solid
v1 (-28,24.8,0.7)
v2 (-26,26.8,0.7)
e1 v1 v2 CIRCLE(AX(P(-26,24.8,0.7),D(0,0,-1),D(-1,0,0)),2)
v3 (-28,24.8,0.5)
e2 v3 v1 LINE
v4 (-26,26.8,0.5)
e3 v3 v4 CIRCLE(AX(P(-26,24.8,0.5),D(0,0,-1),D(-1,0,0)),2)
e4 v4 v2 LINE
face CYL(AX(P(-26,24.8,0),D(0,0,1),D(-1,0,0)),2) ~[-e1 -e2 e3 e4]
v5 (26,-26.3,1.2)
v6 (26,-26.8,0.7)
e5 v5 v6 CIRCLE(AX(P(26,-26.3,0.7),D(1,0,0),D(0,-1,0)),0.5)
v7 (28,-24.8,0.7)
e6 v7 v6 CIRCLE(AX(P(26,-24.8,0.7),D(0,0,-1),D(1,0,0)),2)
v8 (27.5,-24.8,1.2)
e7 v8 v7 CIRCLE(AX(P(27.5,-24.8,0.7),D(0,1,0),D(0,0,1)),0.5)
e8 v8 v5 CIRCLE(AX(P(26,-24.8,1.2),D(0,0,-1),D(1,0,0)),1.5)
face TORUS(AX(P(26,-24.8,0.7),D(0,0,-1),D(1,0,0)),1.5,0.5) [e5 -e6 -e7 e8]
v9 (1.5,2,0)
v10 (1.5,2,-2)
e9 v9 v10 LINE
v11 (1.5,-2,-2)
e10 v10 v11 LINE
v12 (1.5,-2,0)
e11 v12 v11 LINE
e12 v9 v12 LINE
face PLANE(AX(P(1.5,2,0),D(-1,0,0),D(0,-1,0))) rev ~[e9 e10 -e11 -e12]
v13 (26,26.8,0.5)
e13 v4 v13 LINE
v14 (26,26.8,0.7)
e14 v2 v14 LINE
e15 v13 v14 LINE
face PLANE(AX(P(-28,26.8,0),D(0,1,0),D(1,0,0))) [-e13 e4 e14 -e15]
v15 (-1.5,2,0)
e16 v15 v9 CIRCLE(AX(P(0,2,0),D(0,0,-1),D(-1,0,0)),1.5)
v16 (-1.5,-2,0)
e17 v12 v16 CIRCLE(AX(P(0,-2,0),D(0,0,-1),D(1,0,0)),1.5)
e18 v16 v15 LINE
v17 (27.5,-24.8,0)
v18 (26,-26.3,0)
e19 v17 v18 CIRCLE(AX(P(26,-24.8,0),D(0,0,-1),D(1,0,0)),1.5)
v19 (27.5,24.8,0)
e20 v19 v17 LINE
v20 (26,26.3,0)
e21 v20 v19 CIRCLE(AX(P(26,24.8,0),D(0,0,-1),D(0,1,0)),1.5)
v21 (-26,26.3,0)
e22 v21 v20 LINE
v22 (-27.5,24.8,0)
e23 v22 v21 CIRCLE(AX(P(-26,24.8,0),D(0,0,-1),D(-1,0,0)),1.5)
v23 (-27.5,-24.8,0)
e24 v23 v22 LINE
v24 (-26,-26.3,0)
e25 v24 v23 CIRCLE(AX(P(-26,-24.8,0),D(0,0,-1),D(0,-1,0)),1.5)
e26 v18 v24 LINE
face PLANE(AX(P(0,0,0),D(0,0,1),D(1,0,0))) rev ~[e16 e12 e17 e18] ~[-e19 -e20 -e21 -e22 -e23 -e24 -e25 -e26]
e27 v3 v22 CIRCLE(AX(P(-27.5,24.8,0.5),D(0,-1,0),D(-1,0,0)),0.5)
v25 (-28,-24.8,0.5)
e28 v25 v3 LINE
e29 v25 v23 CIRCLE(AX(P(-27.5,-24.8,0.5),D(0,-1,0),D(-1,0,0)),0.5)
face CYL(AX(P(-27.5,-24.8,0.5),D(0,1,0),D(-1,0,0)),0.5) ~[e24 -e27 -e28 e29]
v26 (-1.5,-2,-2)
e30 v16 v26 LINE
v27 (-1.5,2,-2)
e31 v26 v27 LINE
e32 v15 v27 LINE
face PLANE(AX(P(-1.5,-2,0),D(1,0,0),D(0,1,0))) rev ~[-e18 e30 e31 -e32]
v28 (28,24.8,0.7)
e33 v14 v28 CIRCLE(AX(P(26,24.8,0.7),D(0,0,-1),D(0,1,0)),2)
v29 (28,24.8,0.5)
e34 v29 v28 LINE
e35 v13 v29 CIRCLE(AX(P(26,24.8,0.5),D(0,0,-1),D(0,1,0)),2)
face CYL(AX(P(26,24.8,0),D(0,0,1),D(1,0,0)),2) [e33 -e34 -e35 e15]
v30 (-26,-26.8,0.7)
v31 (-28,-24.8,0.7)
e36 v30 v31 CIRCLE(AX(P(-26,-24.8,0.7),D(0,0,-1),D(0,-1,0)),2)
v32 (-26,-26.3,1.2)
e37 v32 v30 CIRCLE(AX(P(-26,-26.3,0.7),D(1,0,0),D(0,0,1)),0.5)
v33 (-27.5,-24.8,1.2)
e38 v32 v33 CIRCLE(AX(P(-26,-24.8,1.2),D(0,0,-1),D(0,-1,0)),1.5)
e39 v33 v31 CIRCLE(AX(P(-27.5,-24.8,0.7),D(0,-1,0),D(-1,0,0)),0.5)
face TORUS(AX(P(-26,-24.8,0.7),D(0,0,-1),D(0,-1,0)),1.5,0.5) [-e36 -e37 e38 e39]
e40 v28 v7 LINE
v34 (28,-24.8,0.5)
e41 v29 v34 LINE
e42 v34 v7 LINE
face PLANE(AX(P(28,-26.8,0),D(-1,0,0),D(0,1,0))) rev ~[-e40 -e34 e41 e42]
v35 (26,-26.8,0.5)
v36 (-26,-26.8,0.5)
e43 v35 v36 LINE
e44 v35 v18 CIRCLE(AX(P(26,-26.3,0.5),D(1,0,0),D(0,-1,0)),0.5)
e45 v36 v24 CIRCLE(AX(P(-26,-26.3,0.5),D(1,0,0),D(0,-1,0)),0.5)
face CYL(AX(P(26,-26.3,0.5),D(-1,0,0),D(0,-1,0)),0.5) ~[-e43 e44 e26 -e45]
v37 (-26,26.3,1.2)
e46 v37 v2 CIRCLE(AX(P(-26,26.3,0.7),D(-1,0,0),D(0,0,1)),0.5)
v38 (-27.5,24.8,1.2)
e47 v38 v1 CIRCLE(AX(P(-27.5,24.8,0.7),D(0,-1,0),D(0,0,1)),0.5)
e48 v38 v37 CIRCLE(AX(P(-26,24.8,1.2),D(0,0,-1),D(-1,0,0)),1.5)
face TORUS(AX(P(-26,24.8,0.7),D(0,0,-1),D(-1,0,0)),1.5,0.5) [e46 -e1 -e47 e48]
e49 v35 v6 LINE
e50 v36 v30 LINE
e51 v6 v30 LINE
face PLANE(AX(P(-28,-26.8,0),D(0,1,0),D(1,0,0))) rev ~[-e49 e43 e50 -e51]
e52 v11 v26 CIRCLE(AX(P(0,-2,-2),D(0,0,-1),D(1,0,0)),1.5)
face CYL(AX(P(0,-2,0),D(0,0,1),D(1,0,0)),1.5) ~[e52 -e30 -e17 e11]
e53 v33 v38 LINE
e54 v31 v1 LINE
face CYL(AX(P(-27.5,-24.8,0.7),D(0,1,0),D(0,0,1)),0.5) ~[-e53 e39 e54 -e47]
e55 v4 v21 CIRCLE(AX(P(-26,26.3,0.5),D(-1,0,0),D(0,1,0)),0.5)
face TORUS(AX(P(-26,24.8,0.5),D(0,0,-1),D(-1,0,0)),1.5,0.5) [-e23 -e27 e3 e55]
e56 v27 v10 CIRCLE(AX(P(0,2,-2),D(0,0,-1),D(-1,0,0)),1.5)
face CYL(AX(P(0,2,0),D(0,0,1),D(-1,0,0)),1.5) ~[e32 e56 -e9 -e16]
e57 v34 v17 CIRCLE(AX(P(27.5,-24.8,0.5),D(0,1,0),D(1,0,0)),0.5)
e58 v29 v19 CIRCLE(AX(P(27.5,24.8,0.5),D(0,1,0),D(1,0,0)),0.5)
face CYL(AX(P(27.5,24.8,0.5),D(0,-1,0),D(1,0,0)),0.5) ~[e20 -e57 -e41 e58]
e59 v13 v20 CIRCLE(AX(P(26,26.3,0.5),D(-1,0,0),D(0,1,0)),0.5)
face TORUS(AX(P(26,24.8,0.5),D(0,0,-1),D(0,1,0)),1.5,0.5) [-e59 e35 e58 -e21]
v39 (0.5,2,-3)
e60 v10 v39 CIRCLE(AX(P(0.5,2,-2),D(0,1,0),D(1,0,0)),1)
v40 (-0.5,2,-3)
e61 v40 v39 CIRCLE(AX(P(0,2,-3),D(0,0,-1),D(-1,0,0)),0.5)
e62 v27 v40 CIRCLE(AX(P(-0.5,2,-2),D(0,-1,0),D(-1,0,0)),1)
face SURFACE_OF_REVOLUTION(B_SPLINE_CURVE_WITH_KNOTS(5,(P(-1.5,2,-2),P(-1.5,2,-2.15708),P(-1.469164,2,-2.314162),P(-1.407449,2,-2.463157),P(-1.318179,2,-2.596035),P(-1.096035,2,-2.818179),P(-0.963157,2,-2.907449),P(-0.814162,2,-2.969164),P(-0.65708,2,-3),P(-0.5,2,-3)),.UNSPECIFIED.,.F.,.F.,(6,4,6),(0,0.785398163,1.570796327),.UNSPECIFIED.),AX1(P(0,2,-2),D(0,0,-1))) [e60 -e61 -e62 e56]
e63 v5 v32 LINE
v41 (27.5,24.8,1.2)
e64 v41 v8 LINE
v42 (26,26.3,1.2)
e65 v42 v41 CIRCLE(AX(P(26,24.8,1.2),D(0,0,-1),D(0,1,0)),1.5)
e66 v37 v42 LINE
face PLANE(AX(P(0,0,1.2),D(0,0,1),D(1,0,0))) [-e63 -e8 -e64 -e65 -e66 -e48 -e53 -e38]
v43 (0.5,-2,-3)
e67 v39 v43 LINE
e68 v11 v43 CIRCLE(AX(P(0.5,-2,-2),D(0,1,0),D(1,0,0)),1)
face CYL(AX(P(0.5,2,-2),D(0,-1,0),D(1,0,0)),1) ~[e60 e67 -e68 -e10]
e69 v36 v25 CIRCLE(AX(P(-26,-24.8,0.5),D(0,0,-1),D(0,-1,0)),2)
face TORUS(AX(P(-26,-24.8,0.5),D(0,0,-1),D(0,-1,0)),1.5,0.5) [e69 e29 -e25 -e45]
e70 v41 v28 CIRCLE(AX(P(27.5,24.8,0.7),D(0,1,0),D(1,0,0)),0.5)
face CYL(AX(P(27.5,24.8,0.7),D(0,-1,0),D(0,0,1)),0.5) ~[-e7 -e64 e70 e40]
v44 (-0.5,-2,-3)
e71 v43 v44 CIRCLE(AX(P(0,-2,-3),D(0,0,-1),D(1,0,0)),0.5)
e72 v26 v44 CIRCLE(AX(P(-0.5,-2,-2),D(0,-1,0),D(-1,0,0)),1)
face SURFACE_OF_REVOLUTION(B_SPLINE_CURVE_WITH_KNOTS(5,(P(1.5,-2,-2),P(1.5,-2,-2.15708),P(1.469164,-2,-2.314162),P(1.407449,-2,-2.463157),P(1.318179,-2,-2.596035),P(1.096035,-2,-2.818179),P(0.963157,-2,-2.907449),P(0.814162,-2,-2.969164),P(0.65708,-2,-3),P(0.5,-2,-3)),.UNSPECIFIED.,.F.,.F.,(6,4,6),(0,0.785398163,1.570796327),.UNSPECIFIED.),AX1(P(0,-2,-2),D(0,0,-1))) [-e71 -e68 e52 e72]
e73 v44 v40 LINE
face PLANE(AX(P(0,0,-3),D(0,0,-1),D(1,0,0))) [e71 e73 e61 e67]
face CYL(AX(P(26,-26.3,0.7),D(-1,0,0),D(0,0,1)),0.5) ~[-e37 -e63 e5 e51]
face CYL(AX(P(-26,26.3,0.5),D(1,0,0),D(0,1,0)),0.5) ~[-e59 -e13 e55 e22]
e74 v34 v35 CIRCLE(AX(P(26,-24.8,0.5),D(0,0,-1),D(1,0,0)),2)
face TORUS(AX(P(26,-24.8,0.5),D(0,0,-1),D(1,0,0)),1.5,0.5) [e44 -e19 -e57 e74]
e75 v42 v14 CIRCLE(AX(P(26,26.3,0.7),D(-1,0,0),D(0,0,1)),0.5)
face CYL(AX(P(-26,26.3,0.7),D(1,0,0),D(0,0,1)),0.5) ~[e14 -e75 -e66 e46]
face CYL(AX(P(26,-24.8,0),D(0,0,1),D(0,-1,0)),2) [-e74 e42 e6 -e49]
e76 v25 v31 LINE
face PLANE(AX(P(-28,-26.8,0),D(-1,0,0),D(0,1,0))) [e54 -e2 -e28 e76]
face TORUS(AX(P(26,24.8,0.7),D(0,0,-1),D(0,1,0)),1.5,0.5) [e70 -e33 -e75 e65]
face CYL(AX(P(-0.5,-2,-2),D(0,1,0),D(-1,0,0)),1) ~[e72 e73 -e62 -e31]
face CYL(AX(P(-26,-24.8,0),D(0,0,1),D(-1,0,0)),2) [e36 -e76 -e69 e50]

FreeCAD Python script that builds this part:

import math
import FreeCAD as App
import Part
import Sketcher
from FreeCAD import Vector


def edges_at(feature, points):
    """Names of the edges that pass closest to the given points."""
    edges = feature.Shape.Edges
    near = lambda p: min(range(len(edges)), key=lambda i: edges[i].distToShape(Part.Vertex(*p))[0])
    return sorted({f"Edge{near(p) + 1}" for p in points})


def add_polygon(sketch, points):
    """Adds a closed chain of lines whose ends are joined by coincident constraints."""
    first, n = sketch.GeometryCount, len(points)
    for a, b in zip(points, points[1:] + points[:1]):
        sketch.addGeometry(Part.LineSegment(App.Vector(*a, 0), App.Vector(*b, 0)), False)
    for i in range(n):
        sketch.addConstraint(Sketcher.Constraint("Coincident", first + i, 2, first + (i + 1) % n, 1))

doc = App.newDocument("Part")
body = doc.addObject("PartDesign::Body", "Body")

sketch1 = body.newObject("Sketcher::SketchObject", "Sketch")
sketch1.AttachmentSupport = (doc.getObject("XY_Plane"), [""])
sketch1.MapMode = "FlatFace"
add_polygon(sketch1, [(-28, 27), (-28, -27), (28, -27), (28, 27)])
sketch1.addConstraint([
    Sketcher.Constraint("Vertical", 0),
    Sketcher.Constraint("Horizontal", 1),
    Sketcher.Constraint("Vertical", 2),
    Sketcher.Constraint("Horizontal", 3),
    Sketcher.Constraint("Symmetric", 0, 2, 2, 2, -1, 1),
    Sketcher.Constraint("DistanceX", 1, 1, 1, 2, 56.0),
    Sketcher.Constraint("DistanceY", 0, 2, 0, 1, 53.6),
])
pad1 = body.newObject("PartDesign::Pad", "Pad")
pad1.Profile = sketch1
pad1.Length = 1.2
doc.recompute()

fillet = body.newObject("PartDesign::Fillet", "Fillet")
fillet.Base = (pad1, edges_at(pad1, [
    (-28, -26.8, 0.6),
    (-28, 26.8, 0.6),
    (28, -26.8, 0.6),
    (28, 26.8, 0.6),
]))
fillet.Radius = 2
doc.recompute()

fillet2 = body.newObject("PartDesign::Fillet", "Fillet001")
fillet2.Base = (fillet, edges_at(fillet, [(0, 26.8, 1.2), (-28, 0, 0)]))
fillet2.Radius = 0.5

sketch2 = body.newObject("Sketcher::SketchObject", "Sketch001")
sketch2.AttachmentSupport = (doc.getObject("XY_Plane"), [""])
sketch2.MapMode = "FlatFace"
sketch2.addGeometry([
    Part.ArcOfCircle(Part.Circle(Vector(0, -2, 0), Vector(0, 0, 1), 1.5), math.radians(180), math.radians(360)),
    Part.LineSegment(Vector(-1.5, -2, 0), Vector(-1.5, 2, 0)),
    Part.ArcOfCircle(Part.Circle(Vector(0, 2, 0), Vector(0, 0, 1), 1.5), math.radians(0), math.radians(180)),
    Part.LineSegment(Vector(1.5, 2, 0), Vector(1.5, -2, 0)),
], False)
sketch2.addConstraint([
    Sketcher.Constraint("Tangent", 0, 1, 1, 1),
    Sketcher.Constraint("Tangent", 1, 2, 2, 2),
    Sketcher.Constraint("Tangent", 2, 1, 3, 1),
    Sketcher.Constraint("Tangent", 3, 2, 0, 2),
    Sketcher.Constraint("Vertical", 1),
    Sketcher.Constraint("Vertical", 3),
    Sketcher.Constraint("Symmetric", 0, 3, 2, 3, -1, 1),
    Sketcher.Constraint("Radius", 0, 1.5),
    Sketcher.Constraint("DistanceY", 1, 1, 1, 2, 4.0),
])
pad2 = body.newObject("PartDesign::Pad", "Pad001")
pad2.Profile = sketch2
pad2.Length = 3
pad2.Reversed = True
doc.recompute()

fillet3 = body.newObject("PartDesign::Fillet", "Fillet002")
fillet3.Base = (pad2, edges_at(pad2, [(-1.5, 0, -3)]))
fillet3.Radius = 1

doc.recompute()
